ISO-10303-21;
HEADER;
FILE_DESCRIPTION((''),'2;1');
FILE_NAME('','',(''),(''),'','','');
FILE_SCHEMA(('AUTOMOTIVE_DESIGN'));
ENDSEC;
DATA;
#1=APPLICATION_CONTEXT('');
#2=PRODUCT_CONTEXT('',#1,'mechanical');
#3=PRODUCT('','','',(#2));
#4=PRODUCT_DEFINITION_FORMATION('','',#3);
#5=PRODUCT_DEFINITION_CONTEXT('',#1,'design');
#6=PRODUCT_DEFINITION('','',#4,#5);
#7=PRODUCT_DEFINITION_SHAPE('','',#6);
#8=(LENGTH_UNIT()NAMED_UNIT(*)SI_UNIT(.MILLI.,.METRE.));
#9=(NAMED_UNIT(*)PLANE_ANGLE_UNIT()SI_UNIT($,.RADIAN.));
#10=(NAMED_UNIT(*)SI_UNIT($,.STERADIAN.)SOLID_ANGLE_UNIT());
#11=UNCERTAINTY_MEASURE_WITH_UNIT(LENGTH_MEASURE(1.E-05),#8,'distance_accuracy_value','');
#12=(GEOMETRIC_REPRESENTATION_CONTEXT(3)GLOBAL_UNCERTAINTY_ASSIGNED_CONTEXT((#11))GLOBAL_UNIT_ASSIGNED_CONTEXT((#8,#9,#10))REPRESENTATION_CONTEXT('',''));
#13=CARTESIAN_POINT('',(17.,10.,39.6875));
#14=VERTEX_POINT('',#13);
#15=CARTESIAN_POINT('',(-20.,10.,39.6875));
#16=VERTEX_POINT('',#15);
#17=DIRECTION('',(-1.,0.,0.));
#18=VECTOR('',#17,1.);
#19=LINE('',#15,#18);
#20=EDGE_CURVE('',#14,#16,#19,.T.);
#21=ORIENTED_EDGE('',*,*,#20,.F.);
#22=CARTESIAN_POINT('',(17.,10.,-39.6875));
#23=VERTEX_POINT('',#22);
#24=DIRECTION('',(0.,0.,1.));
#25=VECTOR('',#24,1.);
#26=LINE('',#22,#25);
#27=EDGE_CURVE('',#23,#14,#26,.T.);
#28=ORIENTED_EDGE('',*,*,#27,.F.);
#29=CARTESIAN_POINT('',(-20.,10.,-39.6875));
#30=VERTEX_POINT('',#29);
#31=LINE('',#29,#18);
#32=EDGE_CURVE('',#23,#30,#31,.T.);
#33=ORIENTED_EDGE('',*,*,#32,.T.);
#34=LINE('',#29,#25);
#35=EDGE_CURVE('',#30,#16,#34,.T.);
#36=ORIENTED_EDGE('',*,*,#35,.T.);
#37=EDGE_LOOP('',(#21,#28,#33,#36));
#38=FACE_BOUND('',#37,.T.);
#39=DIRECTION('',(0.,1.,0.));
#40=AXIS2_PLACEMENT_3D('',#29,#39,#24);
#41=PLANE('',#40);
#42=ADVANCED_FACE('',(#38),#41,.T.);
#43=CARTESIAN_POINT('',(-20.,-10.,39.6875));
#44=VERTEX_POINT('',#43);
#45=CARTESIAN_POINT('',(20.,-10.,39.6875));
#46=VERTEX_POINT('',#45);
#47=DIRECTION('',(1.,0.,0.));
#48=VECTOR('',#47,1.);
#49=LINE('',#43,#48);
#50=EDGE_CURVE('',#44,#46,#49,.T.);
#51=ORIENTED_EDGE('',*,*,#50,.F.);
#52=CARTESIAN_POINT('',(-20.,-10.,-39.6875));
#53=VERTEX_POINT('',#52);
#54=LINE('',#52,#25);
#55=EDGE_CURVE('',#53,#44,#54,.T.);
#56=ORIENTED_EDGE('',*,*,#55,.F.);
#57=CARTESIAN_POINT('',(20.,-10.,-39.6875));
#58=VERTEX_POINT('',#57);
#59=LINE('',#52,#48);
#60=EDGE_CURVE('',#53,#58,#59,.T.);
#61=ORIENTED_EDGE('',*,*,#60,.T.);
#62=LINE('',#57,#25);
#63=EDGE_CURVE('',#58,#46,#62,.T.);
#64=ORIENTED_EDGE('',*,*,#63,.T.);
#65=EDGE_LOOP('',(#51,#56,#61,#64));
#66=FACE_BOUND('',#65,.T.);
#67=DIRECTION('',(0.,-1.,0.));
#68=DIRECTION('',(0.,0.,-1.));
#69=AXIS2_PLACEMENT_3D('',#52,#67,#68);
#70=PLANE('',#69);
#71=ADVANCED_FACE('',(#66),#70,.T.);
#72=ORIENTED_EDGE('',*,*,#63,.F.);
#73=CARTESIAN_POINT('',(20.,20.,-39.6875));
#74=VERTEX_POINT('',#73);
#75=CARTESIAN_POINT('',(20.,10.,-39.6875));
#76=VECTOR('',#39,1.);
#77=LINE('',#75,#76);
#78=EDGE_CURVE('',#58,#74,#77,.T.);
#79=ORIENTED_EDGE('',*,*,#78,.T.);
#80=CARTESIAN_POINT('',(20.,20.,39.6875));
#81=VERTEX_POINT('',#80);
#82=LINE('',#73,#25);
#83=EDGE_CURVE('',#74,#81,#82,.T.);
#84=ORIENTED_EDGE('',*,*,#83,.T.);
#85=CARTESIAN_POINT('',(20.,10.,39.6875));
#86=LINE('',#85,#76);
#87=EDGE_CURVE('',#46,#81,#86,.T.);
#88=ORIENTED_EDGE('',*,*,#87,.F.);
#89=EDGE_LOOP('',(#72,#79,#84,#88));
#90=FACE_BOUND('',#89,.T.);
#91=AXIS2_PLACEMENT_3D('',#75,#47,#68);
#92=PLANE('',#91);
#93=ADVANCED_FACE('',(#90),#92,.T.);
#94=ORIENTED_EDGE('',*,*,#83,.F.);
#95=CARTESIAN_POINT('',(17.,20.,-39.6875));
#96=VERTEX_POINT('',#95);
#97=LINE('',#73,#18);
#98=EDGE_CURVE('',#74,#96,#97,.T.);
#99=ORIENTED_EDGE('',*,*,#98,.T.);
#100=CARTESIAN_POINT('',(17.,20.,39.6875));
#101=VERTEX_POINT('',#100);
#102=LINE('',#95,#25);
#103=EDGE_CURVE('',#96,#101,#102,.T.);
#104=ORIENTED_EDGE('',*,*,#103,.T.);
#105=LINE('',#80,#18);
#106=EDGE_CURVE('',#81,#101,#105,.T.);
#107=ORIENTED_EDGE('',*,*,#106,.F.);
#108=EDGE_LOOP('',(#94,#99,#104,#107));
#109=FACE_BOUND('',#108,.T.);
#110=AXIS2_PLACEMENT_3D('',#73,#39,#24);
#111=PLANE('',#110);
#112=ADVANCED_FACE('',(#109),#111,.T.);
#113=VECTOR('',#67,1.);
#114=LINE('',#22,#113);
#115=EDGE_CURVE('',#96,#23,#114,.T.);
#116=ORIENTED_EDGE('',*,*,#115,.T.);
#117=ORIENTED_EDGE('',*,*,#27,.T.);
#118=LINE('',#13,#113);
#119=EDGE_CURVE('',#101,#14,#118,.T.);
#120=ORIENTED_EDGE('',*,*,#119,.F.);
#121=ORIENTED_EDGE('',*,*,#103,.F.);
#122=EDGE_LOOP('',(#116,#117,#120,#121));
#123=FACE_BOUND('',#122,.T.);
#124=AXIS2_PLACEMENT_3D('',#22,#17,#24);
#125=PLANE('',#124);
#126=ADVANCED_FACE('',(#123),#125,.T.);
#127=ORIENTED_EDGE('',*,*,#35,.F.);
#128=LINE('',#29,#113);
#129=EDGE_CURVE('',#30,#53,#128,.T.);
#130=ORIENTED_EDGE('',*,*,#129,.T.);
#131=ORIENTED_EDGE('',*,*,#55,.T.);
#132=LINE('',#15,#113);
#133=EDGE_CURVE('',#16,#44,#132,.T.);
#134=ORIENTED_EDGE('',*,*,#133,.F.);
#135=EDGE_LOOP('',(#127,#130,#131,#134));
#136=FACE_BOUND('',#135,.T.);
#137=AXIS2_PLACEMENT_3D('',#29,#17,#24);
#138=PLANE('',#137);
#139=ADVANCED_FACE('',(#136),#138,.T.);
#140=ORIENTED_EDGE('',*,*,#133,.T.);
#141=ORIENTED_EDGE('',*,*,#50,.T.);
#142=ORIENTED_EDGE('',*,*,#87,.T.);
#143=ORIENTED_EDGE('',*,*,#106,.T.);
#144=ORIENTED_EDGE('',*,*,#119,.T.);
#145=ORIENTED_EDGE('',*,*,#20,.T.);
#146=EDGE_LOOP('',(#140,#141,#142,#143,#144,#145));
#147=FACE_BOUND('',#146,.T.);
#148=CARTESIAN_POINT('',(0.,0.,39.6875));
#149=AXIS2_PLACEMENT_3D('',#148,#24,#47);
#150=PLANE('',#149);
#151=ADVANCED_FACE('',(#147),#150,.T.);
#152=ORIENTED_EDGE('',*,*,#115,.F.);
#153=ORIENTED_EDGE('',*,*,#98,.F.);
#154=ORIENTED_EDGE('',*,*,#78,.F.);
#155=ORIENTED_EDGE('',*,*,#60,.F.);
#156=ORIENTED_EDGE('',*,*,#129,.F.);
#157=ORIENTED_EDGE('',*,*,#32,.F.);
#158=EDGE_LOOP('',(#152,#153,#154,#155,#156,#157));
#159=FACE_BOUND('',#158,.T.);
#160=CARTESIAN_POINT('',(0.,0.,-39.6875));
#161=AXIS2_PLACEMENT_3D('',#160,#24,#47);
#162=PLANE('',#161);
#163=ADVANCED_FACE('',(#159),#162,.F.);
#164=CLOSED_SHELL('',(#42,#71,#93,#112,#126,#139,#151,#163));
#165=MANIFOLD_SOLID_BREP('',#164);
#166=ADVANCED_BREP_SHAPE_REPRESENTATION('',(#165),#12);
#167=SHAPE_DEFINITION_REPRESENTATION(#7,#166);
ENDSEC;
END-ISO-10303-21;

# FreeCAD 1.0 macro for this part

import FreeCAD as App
import Part
import Sketcher

V = App.Vector
Q = App.Units.Quantity

doc = App.newDocument("Part")
body = doc.addObject("PartDesign::Body", "Body")

# Sketch on XY plane
sketch1 = doc.addObject("Sketcher::SketchObject", "Sketch")
body.addObject(sketch1)
sketch1.AttachmentSupport = (doc.XY_Plane, [""])
sketch1.MapMode = "FlatFace"
sketch1.addGeometry(Part.LineSegment(V(17, 10, 0), V(-20, 10, 0)), False)
sketch1.addGeometry(Part.LineSegment(V(-20, 10, 0), V(-20, -10, 0)), False)
sketch1.addGeometry(Part.LineSegment(V(-20, -10, 0), V(20, -10, 0)), False)
sketch1.addGeometry(Part.LineSegment(V(20, -10, 0), V(20, 20, 0)), False)
sketch1.addGeometry(Part.LineSegment(V(20, 20, 0), V(17, 20, 0)), False)
sketch1.addGeometry(Part.LineSegment(V(17, 20, 0), V(17, 10, 0)), False)
sketch1.addConstraint(Sketcher.Constraint("Coincident", 0, 2, 1, 1))
sketch1.addConstraint(Sketcher.Constraint("Coincident", 1, 2, 2, 1))
sketch1.addConstraint(Sketcher.Constraint("Coincident", 2, 2, 3, 1))
sketch1.addConstraint(Sketcher.Constraint("Coincident", 3, 2, 4, 1))
sketch1.addConstraint(Sketcher.Constraint("Coincident", 4, 2, 5, 1))
sketch1.addConstraint(Sketcher.Constraint("Coincident", 5, 2, 0, 1))
sketch1.addConstraint(Sketcher.Constraint("Horizontal", 0))
sketch1.addConstraint(Sketcher.Constraint("Vertical", 1))
sketch1.addConstraint(Sketcher.Constraint("Horizontal", 2))
sketch1.addConstraint(Sketcher.Constraint("Vertical", 3))
sketch1.addConstraint(Sketcher.Constraint("Horizontal", 4))
sketch1.addConstraint(Sketcher.Constraint("Vertical", 5))
sketch1.addConstraint(Sketcher.Constraint("Symmetric", 0, 2, 2, 2, -1, 1))
sketch1.addConstraint(Sketcher.Constraint("DistanceX", 0, 2, 0, 1, Q("37 mm")))
sketch1.addConstraint(Sketcher.Constraint("DistanceX", 2, 1, 2, 2, Q("40 mm")))
sketch1.addConstraint(Sketcher.Constraint("DistanceY", 1, 2, 1, 1, Q("20 mm")))
sketch1.addConstraint(Sketcher.Constraint("DistanceY", 3, 1, 3, 2, Q("30 mm")))
pad1 = doc.addObject("PartDesign::Pad", "Pad")
body.addObject(pad1)
pad1.Profile = sketch1
pad1.Type = "TwoLengths"
pad1.Length = 39.6875
pad1.Length2 = 39.6875

doc.recompute()
